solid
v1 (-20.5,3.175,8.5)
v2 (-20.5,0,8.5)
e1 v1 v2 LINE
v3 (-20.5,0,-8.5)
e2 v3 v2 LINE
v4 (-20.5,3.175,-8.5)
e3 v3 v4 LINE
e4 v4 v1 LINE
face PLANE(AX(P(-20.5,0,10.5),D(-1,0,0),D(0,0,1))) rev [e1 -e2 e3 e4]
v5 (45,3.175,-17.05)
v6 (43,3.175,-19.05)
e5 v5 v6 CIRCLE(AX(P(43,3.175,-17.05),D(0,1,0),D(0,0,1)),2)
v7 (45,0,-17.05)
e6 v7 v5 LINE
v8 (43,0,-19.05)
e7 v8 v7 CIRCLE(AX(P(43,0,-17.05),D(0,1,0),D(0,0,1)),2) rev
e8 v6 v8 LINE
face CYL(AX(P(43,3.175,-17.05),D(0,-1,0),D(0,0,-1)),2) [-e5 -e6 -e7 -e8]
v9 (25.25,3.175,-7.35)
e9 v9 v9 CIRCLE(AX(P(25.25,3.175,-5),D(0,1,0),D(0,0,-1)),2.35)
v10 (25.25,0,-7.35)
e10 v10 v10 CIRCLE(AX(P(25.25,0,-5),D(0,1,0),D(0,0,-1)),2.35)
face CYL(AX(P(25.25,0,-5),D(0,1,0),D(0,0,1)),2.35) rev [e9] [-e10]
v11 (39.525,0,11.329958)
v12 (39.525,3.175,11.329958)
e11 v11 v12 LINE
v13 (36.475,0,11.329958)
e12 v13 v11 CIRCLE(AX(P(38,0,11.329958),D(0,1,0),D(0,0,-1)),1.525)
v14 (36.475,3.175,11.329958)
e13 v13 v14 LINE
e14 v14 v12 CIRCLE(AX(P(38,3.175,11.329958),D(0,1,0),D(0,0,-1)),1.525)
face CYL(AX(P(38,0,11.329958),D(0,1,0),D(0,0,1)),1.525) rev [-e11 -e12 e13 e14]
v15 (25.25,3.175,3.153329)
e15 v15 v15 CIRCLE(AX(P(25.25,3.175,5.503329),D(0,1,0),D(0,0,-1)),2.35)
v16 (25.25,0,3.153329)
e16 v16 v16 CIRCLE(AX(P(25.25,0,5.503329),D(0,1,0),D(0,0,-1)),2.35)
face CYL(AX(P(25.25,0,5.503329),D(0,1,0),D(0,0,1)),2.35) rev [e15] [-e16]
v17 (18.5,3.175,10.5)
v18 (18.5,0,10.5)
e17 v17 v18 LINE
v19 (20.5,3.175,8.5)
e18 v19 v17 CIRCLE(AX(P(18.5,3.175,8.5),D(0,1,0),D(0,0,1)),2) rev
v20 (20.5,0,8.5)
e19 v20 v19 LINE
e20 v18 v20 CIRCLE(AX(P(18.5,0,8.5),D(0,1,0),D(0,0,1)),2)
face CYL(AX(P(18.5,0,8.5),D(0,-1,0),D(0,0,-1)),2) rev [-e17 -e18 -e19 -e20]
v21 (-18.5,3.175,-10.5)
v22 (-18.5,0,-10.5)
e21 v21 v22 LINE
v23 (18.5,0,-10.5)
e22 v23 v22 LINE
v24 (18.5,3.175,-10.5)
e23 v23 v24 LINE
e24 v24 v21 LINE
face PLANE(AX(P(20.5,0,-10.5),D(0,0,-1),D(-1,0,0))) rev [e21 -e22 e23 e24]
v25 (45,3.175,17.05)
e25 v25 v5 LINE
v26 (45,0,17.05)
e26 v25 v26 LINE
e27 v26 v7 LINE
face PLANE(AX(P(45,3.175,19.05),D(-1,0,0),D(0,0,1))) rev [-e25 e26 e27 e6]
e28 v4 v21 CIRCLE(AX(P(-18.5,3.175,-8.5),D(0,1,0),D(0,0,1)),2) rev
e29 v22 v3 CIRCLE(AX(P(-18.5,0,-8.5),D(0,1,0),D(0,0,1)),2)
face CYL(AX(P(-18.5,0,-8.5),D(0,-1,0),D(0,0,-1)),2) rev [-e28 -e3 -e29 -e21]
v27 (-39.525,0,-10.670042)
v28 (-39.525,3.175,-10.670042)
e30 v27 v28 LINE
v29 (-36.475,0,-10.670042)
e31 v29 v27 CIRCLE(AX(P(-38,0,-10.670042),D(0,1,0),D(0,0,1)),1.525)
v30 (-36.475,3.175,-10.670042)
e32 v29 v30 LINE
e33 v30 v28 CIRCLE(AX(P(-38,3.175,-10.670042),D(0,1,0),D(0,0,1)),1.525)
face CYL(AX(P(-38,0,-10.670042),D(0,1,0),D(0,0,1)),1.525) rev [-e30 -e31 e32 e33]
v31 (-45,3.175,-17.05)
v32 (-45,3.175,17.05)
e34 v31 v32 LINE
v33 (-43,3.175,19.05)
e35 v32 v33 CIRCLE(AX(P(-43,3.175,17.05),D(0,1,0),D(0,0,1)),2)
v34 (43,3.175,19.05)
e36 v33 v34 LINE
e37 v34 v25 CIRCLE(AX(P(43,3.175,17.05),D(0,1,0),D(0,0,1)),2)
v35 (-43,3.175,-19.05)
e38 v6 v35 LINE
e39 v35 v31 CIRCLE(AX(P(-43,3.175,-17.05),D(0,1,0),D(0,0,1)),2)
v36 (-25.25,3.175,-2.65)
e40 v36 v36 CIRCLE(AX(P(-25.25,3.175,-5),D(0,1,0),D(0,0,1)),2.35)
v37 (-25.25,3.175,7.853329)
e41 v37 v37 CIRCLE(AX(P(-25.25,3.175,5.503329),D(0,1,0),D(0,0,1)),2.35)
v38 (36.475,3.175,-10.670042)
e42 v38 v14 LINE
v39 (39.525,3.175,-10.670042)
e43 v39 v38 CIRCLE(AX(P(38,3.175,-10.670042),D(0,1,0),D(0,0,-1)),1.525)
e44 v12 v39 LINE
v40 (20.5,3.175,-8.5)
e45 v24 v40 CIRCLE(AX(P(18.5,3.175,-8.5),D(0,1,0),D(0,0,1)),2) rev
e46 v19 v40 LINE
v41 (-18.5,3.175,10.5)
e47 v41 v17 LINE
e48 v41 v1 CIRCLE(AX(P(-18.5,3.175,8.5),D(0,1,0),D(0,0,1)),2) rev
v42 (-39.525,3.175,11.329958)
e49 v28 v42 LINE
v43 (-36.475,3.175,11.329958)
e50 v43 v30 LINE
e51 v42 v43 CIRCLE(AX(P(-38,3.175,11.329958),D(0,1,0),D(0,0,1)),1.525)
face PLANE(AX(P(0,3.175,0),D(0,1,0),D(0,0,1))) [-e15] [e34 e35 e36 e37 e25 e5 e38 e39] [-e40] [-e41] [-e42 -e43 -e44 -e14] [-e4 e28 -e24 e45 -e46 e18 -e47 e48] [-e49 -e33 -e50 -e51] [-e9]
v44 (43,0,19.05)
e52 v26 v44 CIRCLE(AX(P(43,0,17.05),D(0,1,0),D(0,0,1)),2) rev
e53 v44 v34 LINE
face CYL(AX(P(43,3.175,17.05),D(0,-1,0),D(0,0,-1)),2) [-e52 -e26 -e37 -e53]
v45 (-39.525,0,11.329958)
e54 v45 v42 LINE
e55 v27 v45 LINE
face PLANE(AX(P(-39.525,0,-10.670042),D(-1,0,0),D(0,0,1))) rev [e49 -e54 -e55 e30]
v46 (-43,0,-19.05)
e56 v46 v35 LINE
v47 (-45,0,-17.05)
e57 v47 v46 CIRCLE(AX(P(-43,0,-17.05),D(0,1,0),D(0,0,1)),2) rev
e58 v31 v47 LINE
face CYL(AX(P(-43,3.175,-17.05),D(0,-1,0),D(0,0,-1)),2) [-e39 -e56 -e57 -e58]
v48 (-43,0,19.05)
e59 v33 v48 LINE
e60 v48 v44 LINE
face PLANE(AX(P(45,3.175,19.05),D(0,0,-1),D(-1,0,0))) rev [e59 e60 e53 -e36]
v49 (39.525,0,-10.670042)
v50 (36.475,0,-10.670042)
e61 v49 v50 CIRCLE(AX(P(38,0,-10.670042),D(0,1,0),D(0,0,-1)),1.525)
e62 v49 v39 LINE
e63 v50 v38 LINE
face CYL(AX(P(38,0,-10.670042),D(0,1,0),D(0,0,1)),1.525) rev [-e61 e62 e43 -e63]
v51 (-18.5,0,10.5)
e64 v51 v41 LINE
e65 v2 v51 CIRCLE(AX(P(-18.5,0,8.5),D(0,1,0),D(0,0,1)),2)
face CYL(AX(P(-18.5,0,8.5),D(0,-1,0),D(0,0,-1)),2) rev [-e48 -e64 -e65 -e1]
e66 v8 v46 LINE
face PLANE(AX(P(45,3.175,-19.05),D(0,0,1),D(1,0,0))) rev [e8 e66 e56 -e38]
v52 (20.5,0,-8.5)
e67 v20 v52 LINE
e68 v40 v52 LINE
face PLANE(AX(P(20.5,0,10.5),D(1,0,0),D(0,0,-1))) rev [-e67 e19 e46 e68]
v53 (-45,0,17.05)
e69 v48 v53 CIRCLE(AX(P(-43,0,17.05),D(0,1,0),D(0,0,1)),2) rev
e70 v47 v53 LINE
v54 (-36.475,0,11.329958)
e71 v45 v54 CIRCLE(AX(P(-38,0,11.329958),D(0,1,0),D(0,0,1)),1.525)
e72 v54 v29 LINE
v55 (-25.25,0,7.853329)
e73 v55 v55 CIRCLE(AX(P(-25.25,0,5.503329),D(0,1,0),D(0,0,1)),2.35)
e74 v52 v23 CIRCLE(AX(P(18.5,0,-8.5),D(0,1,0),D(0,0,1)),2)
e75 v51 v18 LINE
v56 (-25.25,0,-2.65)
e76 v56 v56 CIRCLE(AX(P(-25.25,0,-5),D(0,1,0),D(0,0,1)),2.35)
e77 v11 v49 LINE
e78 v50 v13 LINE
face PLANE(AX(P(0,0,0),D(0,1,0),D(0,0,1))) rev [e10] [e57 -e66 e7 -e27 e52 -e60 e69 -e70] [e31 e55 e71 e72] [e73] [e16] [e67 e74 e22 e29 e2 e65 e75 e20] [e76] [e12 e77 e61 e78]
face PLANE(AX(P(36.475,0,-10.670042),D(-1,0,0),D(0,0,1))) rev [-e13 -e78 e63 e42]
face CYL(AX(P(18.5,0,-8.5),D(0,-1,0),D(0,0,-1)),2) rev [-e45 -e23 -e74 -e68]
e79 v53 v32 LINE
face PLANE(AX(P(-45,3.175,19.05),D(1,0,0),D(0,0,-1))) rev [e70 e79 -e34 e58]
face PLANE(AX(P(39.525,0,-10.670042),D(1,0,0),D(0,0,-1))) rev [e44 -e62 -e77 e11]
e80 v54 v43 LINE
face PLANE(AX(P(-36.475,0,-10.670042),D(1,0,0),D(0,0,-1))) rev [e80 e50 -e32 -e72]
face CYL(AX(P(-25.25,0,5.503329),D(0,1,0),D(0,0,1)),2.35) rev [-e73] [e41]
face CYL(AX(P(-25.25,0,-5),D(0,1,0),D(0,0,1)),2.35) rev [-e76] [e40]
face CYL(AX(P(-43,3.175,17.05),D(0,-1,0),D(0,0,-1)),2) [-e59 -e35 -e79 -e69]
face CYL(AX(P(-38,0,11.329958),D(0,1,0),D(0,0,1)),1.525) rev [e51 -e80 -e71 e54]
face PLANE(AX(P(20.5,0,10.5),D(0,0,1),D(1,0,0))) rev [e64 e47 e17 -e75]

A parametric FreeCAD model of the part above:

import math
import FreeCAD as App
import Part
import Sketcher
from FreeCAD import Vector


def edges_at(feature, points):
    """Names of the edges that pass closest to the given points."""
    edges = feature.Shape.Edges
    near = lambda p: min(range(len(edges)), key=lambda i: edges[i].distToShape(Part.Vertex(*p))[0])
    return sorted({f"Edge{near(p) + 1}" for p in points})


def add_polygon(sketch, points):
    """Adds a closed chain of lines whose ends are joined by coincident constraints."""
    first, n = sketch.GeometryCount, len(points)
    for a, b in zip(points, points[1:] + points[:1]):
        sketch.addGeometry(Part.LineSegment(App.Vector(*a, 0), App.Vector(*b, 0)), False)
    for i in range(n):
        sketch.addConstraint(Sketcher.Constraint("Coincident", first + i, 2, first + (i + 1) % n, 1))

doc = App.newDocument("Part")
body = doc.addObject("PartDesign::Body", "Body")

sketch1 = doc.addObject("Sketcher::SketchObject", "Sketch")
body.addObject(sketch1)
sketch1.AttachmentSupport = (doc.XZ_Plane, [""])
sketch1.MapMode = "FlatFace"
add_polygon(sketch1, [(-45, -19.05), (-45, 19.05), (45, 19.05), (45, -19.05)])
sketch1.addConstraint([
    Sketcher.Constraint("Vertical", 0),
    Sketcher.Constraint("Horizontal", 1),
    Sketcher.Constraint("Vertical", 2),
    Sketcher.Constraint("Horizontal", 3),
    Sketcher.Constraint("Symmetric", 0, 2, 2, 2, -1, 1),
    Sketcher.Constraint("DistanceX", 1, 1, 1, 2, 90.0),
    Sketcher.Constraint("DistanceY", 0, 1, 0, 2, 38.1),
])
pad1 = doc.addObject("PartDesign::Pad", "Pad")
body.addObject(pad1)
pad1.Profile = sketch1
pad1.Length = 3.175
pad1.Reversed = True

sketch2 = doc.addObject("Sketcher::SketchObject", "Sketch001")
body.addObject(sketch2)
sketch2.AttachmentSupport = (doc.XZ_Plane, [""])
sketch2.MapMode = "FlatFace"
sketch2.AttachmentOffset = App.Placement(Vector(0, 0, -3.175), App.Rotation())
sketch2.addGeometry(Part.Circle(Vector(-25.25, -5, 0), Vector(0, 0, 1), 2.35), False)
sketch2.addGeometry(Part.Circle(Vector(-25.25, 5.503329, 0), Vector(0, 0, 1), 2.35), False)
sketch2.addGeometry(Part.Circle(Vector(25.25, -5, 0), Vector(0, 0, 1), 2.35), False)
sketch2.addGeometry(Part.Circle(Vector(25.25, 5.503329, 0), Vector(0, 0, 1), 2.35), False)
add_polygon(sketch2, [(-20.5, -10.5), (-20.5, 10.5), (20.5, 10.5), (20.5, -10.5)])
sketch2.addConstraint([
    Sketcher.Constraint("Vertical", 4),
    Sketcher.Constraint("Horizontal", 5),
    Sketcher.Constraint("Vertical", 6),
    Sketcher.Constraint("Horizontal", 7),
    Sketcher.Constraint("Equal", 0, 1),
    Sketcher.Constraint("Equal", 1, 2),
    Sketcher.Constraint("Equal", 2, 3),
    Sketcher.Constraint("Symmetric", 4, 2, 6, 2, -1, 1),
    Sketcher.Constraint("Symmetric", 0, 3, 2, 3, -2),
    Sketcher.Constraint("Symmetric", 1, 3, 3, 3, -2),
    Sketcher.Constraint("Vertical", 0, 3, 1, 3),
    Sketcher.Constraint("Diameter", 0, 4.7),
    Sketcher.Constraint("DistanceX", 5, 1, 5, 2, 41.0),
    Sketcher.Constraint("DistanceY", 4, 1, 4, 2, 21.0),
    Sketcher.Constraint("DistanceY", 0, 3, -1, 1, 5.0),
    Sketcher.Constraint("DistanceX", 0, 3, 2, 3, 50.5),
    Sketcher.Constraint("DistanceY", -1, 1, 1, 3, 5.503329),
])
pocket1 = doc.addObject("PartDesign::Pocket", "Pocket")
body.addObject(pocket1)
pocket1.Profile = sketch2
pocket1.Type = "ThroughAll"
pocket1.Reversed = True
doc.recompute()

fillet = doc.addObject("PartDesign::Fillet", "Fillet")
body.addObject(fillet)
fillet.Base = (pocket1, edges_at(pocket1, [
    (-20.5, 1.587, 10.5),
    (-20.5, 1.587, -10.5),
    (20.5, 1.587, -10.5),
    (20.5, 1.587, 10.5),
    (-45, 1.587, -19.05),
    (45, 1.587, -19.05),
    (45, 1.587, 19.05),
    (-45, 1.587, 19.05),
]))
fillet.Radius = 2

sketch3 = doc.addObject("Sketcher::SketchObject", "Sketch002")
body.addObject(sketch3)
sketch3.AttachmentSupport = (doc.XZ_Plane, [""])
sketch3.MapMode = "FlatFace"
sketch3.AttachmentOffset = App.Placement(Vector(0, 0, -3.175), App.Rotation())
sketch3.addGeometry([
    Part.LineSegment(Vector(-36.475, 11.329958, 0), Vector(-36.475, -10.670042, 0)),
    Part.ArcOfCircle(Part.Circle(Vector(-38, -10.670042, 0), Vector(0, 0, 1), 1.525), math.radians(180), math.radians(360)),
    Part.LineSegment(Vector(-39.525, -10.670042, 0), Vector(-39.525, 11.329958, 0)),
    Part.ArcOfCircle(Part.Circle(Vector(-38, 11.329958, 0), Vector(0, 0, 1), 1.525), math.radians(0), math.radians(180)),
    Part.LineSegment(Vector(36.475, -10.670042, 0), Vector(36.475, 11.329958, 0)),
    Part.ArcOfCircle(Part.Circle(Vector(38, 11.329958, 0), Vector(0, 0, 1), 1.525), math.radians(0), math.radians(180)),
    Part.LineSegment(Vector(39.525, 11.329958, 0), Vector(39.525, -10.670042, 0)),
    Part.ArcOfCircle(Part.Circle(Vector(38, -10.670042, 0), Vector(0, 0, 1), 1.525), math.radians(180), math.radians(360)),
], False)
sketch3.addConstraint([
    Sketcher.Constraint("Tangent", 0, 2, 1, 2),
    Sketcher.Constraint("Tangent", 1, 1, 2, 1),
    Sketcher.Constraint("Tangent", 2, 2, 3, 2),
    Sketcher.Constraint("Tangent", 3, 1, 0, 1),
    Sketcher.Constraint("Tangent", 4, 2, 5, 2),
    Sketcher.Constraint("Tangent", 5, 1, 6, 1),
    Sketcher.Constraint("Tangent", 6, 2, 7, 2),
    Sketcher.Constraint("Tangent", 7, 1, 4, 1),
    Sketcher.Constraint("Vertical", 0),
    Sketcher.Constraint("Vertical", 2),
    Sketcher.Constraint("Vertical", 4),
    Sketcher.Constraint("Vertical", 6),
    Sketcher.Constraint("Equal", 3, 5),
    Sketcher.Constraint("Symmetric", 3, 3, 5, 3, -2),
    Sketcher.Constraint("Horizontal", 1, 3, 7, 3),
    Sketcher.Constraint("DistanceY", 0, 2, 0, 1, 22.0),
    Sketcher.Constraint("DistanceX", 1, 3, -1, 1, 38.0),
    Sketcher.Constraint("Radius", 1, 1.525),
    Sketcher.Constraint("DistanceY", 1, 3, -1, 1, 10.670042),
])
pocket2 = doc.addObject("PartDesign::Pocket", "Pocket001")
body.addObject(pocket2)
pocket2.Profile = sketch3
pocket2.Type = "ThroughAll"
pocket2.Reversed = True

doc.recompute()
